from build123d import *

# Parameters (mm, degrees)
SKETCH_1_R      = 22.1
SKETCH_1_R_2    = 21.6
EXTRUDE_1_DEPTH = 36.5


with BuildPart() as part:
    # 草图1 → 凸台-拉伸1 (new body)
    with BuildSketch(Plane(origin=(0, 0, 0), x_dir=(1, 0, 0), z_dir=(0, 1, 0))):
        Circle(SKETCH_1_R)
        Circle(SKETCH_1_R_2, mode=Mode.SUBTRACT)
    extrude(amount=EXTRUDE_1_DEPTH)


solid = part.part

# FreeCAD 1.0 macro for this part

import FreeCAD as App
import Part
import Sketcher
from FreeCAD import Vector
Q = App.Units.Quantity

doc = App.newDocument("Part")
body = doc.addObject("PartDesign::Body", "Body")

# Sketch on XZ plane
sketch1 = body.newObject("Sketcher::SketchObject", "Sketch")
sketch1.AttachmentSupport = (doc.getObject("XZ_Plane"), [""])
sketch1.MapMode = "FlatFace"
sketch1.addGeometry([
    Part.Circle(Vector(0, 0, 0), Vector(0, 0, 1), 22.1),
    Part.Circle(Vector(0, 0, 0), Vector(0, 0, 1), 21.6),
], False)
sketch1.addConstraint([
    Sketcher.Constraint("Coincident", 0, 3, -1, 1),
    Sketcher.Constraint("Coincident", 1, 3, -1, 1),
    Sketcher.Constraint("Diameter", 0, Q("44.2 mm")),
    Sketcher.Constraint("Diameter", 1, Q("43.2 mm")),
])
pad1 = body.newObject("PartDesign::Pad", "Pad")
pad1.Profile = sketch1
pad1.Length = 36.5
pad1.Reversed = True

doc.recompute()
